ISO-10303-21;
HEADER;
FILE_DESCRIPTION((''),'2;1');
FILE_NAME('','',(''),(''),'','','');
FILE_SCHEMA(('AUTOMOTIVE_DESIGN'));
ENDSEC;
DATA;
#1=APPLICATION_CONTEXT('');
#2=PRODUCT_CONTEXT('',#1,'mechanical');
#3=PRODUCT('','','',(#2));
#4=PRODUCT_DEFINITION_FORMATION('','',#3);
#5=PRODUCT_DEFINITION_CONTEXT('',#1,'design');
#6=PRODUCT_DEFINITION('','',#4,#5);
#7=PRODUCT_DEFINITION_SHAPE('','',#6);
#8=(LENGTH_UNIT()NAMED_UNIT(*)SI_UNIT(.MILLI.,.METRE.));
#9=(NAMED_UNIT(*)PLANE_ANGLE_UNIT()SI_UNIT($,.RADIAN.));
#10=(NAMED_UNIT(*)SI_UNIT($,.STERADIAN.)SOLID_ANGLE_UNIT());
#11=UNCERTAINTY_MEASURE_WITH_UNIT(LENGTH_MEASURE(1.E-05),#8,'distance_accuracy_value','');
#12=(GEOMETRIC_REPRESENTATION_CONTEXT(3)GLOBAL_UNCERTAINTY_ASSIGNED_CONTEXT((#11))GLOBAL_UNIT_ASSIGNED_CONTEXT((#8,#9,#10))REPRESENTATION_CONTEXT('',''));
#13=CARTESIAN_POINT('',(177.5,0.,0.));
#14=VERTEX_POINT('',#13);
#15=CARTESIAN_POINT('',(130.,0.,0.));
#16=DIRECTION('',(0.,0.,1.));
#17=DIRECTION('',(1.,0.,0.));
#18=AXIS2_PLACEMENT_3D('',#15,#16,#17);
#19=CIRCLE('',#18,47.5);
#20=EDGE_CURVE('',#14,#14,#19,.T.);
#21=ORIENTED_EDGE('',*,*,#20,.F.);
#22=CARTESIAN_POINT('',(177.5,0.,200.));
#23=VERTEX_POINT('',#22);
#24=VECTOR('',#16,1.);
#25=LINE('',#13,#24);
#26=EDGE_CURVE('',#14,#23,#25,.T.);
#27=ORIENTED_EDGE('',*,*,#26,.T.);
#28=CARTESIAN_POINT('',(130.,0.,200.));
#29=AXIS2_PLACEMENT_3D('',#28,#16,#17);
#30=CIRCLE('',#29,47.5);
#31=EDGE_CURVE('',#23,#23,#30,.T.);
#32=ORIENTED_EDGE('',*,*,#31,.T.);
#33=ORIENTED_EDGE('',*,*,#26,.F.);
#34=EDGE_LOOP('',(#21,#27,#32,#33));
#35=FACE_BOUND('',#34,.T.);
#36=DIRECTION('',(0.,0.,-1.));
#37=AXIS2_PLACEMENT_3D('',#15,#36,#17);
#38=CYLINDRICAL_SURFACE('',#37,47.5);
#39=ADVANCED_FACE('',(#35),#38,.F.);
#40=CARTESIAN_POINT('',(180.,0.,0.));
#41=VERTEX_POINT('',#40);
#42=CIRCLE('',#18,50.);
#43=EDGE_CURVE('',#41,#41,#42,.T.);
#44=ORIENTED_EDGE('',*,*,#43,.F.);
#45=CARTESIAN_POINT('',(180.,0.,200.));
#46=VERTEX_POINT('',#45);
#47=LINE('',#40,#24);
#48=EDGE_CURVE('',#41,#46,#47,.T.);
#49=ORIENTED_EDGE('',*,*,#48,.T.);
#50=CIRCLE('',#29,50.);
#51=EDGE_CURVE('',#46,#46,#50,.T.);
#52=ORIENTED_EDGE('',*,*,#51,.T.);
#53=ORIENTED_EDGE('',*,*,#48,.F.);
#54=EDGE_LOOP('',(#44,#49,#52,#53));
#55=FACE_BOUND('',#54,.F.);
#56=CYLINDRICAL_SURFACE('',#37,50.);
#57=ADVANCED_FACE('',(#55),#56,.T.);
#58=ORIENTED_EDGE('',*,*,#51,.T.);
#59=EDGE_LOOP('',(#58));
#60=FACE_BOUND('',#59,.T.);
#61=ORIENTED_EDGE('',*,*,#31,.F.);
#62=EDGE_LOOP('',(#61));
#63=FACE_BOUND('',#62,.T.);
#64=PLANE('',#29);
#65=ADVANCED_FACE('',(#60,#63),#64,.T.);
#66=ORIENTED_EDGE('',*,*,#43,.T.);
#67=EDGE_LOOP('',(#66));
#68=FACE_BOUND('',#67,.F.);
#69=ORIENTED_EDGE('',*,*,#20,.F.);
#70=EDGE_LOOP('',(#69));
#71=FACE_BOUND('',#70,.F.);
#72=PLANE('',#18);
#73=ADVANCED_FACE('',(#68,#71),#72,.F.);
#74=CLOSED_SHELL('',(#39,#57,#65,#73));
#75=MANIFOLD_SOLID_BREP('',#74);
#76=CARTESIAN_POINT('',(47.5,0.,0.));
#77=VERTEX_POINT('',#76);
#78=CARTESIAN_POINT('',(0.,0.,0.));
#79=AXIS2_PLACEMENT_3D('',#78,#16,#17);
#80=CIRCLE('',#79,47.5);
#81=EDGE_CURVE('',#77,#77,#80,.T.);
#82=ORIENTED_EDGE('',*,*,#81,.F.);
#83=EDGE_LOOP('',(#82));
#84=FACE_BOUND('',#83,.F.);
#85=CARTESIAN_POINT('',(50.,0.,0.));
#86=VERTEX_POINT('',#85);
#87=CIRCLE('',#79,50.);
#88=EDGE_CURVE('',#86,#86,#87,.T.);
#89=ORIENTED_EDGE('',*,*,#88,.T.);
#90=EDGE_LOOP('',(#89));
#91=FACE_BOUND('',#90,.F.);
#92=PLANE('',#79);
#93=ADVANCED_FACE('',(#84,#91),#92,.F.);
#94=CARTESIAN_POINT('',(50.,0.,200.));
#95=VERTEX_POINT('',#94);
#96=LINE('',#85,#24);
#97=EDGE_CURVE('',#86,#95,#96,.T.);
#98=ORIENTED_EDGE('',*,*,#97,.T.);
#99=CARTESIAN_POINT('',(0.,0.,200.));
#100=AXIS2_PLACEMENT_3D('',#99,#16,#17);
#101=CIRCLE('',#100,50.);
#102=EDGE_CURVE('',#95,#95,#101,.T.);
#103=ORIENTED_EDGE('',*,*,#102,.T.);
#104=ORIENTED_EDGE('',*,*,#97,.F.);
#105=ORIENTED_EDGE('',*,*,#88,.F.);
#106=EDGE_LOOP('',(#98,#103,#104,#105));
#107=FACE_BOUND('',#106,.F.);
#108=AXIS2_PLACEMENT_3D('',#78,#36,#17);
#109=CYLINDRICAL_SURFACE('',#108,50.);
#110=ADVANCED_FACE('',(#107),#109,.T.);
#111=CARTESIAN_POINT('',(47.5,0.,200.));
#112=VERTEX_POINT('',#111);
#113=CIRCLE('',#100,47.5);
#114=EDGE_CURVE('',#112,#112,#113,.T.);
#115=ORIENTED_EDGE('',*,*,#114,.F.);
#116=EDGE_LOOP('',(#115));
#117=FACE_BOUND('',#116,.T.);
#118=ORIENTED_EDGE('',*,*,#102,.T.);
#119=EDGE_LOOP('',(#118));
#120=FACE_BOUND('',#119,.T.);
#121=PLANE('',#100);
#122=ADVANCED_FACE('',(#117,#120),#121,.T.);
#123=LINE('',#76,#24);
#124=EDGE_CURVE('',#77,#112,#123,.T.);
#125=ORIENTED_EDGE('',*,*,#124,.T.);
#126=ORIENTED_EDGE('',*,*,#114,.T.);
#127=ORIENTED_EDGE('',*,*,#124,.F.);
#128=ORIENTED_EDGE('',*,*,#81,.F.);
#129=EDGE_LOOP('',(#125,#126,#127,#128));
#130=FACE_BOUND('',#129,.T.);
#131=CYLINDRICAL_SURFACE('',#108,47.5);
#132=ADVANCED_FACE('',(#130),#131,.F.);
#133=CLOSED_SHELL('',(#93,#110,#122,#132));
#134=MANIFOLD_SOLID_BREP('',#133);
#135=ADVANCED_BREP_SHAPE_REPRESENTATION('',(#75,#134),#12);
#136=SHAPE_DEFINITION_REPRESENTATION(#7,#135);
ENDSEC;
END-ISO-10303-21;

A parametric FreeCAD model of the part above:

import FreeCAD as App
import Part
import Sketcher
Q = App.Units.Quantity

doc = App.newDocument("Part")
body = doc.addObject("PartDesign::Body", "Body")
body.AllowCompound = True

sketch1 = body.newObject("Sketcher::SketchObject", "Sketch")
sketch1.AttachmentSupport = (doc.getObject("XY_Plane"), [""])
sketch1.MapMode = "FlatFace"
sketch1.addGeometry([
    Part.Circle(App.Vector(0, 0, 0), App.Vector(0, 0, 1), 50),
    Part.Circle(App.Vector(0, 0, 0), App.Vector(0, 0, 1), 47.5),
    Part.Circle(App.Vector(130, 0, 0), App.Vector(0, 0, 1), 50),
    Part.Circle(App.Vector(130, 0, 0), App.Vector(0, 0, 1), 47.5),
], False)
sketch1.addConstraint([
    Sketcher.Constraint("Coincident", 0, 3, -1, 1),
    Sketcher.Constraint("Coincident", 1, 3, -1, 1),
    Sketcher.Constraint("Coincident", 3, 3, 2, 3),
    Sketcher.Constraint("Equal", 0, 2),
    Sketcher.Constraint("Equal", 1, 3),
    Sketcher.Constraint("PointOnObject", 2, 3, -1),
    Sketcher.Constraint("Diameter", 0, Q("100 mm")),
    Sketcher.Constraint("Diameter", 1, Q("95 mm")),
    Sketcher.Constraint("DistanceX", -1, 1, 2, 3, Q("130 mm")),
])
pad1 = body.newObject("PartDesign::Pad", "Pad")
pad1.Profile = sketch1
pad1.Length = 200

doc.recompute()
